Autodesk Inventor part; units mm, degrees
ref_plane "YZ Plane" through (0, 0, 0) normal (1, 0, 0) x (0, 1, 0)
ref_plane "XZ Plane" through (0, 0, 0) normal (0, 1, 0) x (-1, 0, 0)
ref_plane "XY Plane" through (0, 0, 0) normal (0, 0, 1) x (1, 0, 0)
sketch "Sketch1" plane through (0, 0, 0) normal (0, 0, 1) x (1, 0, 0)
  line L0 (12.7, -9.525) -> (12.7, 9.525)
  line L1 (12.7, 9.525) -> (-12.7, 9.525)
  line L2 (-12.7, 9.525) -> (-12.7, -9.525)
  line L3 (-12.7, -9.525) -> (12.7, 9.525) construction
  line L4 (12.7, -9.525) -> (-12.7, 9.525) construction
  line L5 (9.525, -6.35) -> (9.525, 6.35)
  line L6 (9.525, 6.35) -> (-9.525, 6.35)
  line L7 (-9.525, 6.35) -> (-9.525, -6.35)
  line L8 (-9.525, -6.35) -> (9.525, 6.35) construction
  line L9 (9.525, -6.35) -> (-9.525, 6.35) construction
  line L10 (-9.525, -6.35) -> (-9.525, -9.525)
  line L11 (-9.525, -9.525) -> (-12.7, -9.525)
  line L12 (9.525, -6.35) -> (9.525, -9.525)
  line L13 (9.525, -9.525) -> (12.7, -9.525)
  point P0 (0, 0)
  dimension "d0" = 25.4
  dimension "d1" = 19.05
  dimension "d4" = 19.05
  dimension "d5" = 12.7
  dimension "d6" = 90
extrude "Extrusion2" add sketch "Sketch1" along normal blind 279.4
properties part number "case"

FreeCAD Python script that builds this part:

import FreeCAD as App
import Part
import Sketcher
Q = App.Units.Quantity

doc = App.newDocument("Part")
body = doc.addObject("PartDesign::Body", "Body")

sketch1 = body.newObject("Sketcher::SketchObject", "Sketch")
sketch1.AttachmentSupport = (doc.getObject("XY_Plane"), [""])
sketch1.MapMode = "FlatFace"
sketch1.addGeometry(Part.LineSegment(App.Vector(9.5, -9.5, 0), App.Vector(12.7, -9.5, 0)), False)
sketch1.addGeometry(Part.LineSegment(App.Vector(12.7, -9.5, 0), App.Vector(12.7, 9.5, 0)), False)
sketch1.addGeometry(Part.LineSegment(App.Vector(12.7, 9.5, 0), App.Vector(-12.7, 9.5, 0)), False)
sketch1.addGeometry(Part.LineSegment(App.Vector(-12.7, 9.5, 0), App.Vector(-12.7, -9.5, 0)), False)
sketch1.addGeometry(Part.LineSegment(App.Vector(-12.7, -9.5, 0), App.Vector(-9.5, -9.5, 0)), False)
sketch1.addGeometry(Part.LineSegment(App.Vector(-9.5, -9.5, 0), App.Vector(-9.5, 6.3, 0)), False)
sketch1.addGeometry(Part.LineSegment(App.Vector(-9.5, 6.3, 0), App.Vector(9.5, 6.3, 0)), False)
sketch1.addGeometry(Part.LineSegment(App.Vector(9.5, 6.3, 0), App.Vector(9.5, -9.5, 0)), False)
sketch1.addConstraint(Sketcher.Constraint("Coincident", 0, 2, 1, 1))
sketch1.addConstraint(Sketcher.Constraint("Coincident", 1, 2, 2, 1))
sketch1.addConstraint(Sketcher.Constraint("Coincident", 2, 2, 3, 1))
sketch1.addConstraint(Sketcher.Constraint("Coincident", 3, 2, 4, 1))
sketch1.addConstraint(Sketcher.Constraint("Coincident", 4, 2, 5, 1))
sketch1.addConstraint(Sketcher.Constraint("Coincident", 5, 2, 6, 1))
sketch1.addConstraint(Sketcher.Constraint("Coincident", 6, 2, 7, 1))
sketch1.addConstraint(Sketcher.Constraint("Coincident", 7, 2, 0, 1))
sketch1.addConstraint(Sketcher.Constraint("Horizontal", 0))
sketch1.addConstraint(Sketcher.Constraint("Vertical", 1))
sketch1.addConstraint(Sketcher.Constraint("Horizontal", 2))
sketch1.addConstraint(Sketcher.Constraint("Vertical", 3))
sketch1.addConstraint(Sketcher.Constraint("Horizontal", 4))
sketch1.addConstraint(Sketcher.Constraint("Vertical", 5))
sketch1.addConstraint(Sketcher.Constraint("Horizontal", 6))
sketch1.addConstraint(Sketcher.Constraint("Vertical", 7))
sketch1.addConstraint(Sketcher.Constraint("Symmetric", 0, 2, 2, 2, -1, 1))
sketch1.addConstraint(Sketcher.Constraint("Symmetric", 4, 2, 7, 2, -2))
sketch1.addConstraint(Sketcher.Constraint("Equal", 6, 1))
sketch1.addConstraint(Sketcher.Constraint("DistanceX", 2, 2, 2, 1, Q("1 in")))
sketch1.addConstraint(Sketcher.Constraint("DistanceX", 6, 1, 6, 2, Q("0.75 in")))
sketch1.addConstraint(Sketcher.Constraint("DistanceY", 5, 1, 5, 2, Q("0.625 in")))
pad1 = body.newObject("PartDesign::Pad", "Pad")
pad1.Profile = sketch1
pad1.Length = Q("11 in")

doc.recompute()
